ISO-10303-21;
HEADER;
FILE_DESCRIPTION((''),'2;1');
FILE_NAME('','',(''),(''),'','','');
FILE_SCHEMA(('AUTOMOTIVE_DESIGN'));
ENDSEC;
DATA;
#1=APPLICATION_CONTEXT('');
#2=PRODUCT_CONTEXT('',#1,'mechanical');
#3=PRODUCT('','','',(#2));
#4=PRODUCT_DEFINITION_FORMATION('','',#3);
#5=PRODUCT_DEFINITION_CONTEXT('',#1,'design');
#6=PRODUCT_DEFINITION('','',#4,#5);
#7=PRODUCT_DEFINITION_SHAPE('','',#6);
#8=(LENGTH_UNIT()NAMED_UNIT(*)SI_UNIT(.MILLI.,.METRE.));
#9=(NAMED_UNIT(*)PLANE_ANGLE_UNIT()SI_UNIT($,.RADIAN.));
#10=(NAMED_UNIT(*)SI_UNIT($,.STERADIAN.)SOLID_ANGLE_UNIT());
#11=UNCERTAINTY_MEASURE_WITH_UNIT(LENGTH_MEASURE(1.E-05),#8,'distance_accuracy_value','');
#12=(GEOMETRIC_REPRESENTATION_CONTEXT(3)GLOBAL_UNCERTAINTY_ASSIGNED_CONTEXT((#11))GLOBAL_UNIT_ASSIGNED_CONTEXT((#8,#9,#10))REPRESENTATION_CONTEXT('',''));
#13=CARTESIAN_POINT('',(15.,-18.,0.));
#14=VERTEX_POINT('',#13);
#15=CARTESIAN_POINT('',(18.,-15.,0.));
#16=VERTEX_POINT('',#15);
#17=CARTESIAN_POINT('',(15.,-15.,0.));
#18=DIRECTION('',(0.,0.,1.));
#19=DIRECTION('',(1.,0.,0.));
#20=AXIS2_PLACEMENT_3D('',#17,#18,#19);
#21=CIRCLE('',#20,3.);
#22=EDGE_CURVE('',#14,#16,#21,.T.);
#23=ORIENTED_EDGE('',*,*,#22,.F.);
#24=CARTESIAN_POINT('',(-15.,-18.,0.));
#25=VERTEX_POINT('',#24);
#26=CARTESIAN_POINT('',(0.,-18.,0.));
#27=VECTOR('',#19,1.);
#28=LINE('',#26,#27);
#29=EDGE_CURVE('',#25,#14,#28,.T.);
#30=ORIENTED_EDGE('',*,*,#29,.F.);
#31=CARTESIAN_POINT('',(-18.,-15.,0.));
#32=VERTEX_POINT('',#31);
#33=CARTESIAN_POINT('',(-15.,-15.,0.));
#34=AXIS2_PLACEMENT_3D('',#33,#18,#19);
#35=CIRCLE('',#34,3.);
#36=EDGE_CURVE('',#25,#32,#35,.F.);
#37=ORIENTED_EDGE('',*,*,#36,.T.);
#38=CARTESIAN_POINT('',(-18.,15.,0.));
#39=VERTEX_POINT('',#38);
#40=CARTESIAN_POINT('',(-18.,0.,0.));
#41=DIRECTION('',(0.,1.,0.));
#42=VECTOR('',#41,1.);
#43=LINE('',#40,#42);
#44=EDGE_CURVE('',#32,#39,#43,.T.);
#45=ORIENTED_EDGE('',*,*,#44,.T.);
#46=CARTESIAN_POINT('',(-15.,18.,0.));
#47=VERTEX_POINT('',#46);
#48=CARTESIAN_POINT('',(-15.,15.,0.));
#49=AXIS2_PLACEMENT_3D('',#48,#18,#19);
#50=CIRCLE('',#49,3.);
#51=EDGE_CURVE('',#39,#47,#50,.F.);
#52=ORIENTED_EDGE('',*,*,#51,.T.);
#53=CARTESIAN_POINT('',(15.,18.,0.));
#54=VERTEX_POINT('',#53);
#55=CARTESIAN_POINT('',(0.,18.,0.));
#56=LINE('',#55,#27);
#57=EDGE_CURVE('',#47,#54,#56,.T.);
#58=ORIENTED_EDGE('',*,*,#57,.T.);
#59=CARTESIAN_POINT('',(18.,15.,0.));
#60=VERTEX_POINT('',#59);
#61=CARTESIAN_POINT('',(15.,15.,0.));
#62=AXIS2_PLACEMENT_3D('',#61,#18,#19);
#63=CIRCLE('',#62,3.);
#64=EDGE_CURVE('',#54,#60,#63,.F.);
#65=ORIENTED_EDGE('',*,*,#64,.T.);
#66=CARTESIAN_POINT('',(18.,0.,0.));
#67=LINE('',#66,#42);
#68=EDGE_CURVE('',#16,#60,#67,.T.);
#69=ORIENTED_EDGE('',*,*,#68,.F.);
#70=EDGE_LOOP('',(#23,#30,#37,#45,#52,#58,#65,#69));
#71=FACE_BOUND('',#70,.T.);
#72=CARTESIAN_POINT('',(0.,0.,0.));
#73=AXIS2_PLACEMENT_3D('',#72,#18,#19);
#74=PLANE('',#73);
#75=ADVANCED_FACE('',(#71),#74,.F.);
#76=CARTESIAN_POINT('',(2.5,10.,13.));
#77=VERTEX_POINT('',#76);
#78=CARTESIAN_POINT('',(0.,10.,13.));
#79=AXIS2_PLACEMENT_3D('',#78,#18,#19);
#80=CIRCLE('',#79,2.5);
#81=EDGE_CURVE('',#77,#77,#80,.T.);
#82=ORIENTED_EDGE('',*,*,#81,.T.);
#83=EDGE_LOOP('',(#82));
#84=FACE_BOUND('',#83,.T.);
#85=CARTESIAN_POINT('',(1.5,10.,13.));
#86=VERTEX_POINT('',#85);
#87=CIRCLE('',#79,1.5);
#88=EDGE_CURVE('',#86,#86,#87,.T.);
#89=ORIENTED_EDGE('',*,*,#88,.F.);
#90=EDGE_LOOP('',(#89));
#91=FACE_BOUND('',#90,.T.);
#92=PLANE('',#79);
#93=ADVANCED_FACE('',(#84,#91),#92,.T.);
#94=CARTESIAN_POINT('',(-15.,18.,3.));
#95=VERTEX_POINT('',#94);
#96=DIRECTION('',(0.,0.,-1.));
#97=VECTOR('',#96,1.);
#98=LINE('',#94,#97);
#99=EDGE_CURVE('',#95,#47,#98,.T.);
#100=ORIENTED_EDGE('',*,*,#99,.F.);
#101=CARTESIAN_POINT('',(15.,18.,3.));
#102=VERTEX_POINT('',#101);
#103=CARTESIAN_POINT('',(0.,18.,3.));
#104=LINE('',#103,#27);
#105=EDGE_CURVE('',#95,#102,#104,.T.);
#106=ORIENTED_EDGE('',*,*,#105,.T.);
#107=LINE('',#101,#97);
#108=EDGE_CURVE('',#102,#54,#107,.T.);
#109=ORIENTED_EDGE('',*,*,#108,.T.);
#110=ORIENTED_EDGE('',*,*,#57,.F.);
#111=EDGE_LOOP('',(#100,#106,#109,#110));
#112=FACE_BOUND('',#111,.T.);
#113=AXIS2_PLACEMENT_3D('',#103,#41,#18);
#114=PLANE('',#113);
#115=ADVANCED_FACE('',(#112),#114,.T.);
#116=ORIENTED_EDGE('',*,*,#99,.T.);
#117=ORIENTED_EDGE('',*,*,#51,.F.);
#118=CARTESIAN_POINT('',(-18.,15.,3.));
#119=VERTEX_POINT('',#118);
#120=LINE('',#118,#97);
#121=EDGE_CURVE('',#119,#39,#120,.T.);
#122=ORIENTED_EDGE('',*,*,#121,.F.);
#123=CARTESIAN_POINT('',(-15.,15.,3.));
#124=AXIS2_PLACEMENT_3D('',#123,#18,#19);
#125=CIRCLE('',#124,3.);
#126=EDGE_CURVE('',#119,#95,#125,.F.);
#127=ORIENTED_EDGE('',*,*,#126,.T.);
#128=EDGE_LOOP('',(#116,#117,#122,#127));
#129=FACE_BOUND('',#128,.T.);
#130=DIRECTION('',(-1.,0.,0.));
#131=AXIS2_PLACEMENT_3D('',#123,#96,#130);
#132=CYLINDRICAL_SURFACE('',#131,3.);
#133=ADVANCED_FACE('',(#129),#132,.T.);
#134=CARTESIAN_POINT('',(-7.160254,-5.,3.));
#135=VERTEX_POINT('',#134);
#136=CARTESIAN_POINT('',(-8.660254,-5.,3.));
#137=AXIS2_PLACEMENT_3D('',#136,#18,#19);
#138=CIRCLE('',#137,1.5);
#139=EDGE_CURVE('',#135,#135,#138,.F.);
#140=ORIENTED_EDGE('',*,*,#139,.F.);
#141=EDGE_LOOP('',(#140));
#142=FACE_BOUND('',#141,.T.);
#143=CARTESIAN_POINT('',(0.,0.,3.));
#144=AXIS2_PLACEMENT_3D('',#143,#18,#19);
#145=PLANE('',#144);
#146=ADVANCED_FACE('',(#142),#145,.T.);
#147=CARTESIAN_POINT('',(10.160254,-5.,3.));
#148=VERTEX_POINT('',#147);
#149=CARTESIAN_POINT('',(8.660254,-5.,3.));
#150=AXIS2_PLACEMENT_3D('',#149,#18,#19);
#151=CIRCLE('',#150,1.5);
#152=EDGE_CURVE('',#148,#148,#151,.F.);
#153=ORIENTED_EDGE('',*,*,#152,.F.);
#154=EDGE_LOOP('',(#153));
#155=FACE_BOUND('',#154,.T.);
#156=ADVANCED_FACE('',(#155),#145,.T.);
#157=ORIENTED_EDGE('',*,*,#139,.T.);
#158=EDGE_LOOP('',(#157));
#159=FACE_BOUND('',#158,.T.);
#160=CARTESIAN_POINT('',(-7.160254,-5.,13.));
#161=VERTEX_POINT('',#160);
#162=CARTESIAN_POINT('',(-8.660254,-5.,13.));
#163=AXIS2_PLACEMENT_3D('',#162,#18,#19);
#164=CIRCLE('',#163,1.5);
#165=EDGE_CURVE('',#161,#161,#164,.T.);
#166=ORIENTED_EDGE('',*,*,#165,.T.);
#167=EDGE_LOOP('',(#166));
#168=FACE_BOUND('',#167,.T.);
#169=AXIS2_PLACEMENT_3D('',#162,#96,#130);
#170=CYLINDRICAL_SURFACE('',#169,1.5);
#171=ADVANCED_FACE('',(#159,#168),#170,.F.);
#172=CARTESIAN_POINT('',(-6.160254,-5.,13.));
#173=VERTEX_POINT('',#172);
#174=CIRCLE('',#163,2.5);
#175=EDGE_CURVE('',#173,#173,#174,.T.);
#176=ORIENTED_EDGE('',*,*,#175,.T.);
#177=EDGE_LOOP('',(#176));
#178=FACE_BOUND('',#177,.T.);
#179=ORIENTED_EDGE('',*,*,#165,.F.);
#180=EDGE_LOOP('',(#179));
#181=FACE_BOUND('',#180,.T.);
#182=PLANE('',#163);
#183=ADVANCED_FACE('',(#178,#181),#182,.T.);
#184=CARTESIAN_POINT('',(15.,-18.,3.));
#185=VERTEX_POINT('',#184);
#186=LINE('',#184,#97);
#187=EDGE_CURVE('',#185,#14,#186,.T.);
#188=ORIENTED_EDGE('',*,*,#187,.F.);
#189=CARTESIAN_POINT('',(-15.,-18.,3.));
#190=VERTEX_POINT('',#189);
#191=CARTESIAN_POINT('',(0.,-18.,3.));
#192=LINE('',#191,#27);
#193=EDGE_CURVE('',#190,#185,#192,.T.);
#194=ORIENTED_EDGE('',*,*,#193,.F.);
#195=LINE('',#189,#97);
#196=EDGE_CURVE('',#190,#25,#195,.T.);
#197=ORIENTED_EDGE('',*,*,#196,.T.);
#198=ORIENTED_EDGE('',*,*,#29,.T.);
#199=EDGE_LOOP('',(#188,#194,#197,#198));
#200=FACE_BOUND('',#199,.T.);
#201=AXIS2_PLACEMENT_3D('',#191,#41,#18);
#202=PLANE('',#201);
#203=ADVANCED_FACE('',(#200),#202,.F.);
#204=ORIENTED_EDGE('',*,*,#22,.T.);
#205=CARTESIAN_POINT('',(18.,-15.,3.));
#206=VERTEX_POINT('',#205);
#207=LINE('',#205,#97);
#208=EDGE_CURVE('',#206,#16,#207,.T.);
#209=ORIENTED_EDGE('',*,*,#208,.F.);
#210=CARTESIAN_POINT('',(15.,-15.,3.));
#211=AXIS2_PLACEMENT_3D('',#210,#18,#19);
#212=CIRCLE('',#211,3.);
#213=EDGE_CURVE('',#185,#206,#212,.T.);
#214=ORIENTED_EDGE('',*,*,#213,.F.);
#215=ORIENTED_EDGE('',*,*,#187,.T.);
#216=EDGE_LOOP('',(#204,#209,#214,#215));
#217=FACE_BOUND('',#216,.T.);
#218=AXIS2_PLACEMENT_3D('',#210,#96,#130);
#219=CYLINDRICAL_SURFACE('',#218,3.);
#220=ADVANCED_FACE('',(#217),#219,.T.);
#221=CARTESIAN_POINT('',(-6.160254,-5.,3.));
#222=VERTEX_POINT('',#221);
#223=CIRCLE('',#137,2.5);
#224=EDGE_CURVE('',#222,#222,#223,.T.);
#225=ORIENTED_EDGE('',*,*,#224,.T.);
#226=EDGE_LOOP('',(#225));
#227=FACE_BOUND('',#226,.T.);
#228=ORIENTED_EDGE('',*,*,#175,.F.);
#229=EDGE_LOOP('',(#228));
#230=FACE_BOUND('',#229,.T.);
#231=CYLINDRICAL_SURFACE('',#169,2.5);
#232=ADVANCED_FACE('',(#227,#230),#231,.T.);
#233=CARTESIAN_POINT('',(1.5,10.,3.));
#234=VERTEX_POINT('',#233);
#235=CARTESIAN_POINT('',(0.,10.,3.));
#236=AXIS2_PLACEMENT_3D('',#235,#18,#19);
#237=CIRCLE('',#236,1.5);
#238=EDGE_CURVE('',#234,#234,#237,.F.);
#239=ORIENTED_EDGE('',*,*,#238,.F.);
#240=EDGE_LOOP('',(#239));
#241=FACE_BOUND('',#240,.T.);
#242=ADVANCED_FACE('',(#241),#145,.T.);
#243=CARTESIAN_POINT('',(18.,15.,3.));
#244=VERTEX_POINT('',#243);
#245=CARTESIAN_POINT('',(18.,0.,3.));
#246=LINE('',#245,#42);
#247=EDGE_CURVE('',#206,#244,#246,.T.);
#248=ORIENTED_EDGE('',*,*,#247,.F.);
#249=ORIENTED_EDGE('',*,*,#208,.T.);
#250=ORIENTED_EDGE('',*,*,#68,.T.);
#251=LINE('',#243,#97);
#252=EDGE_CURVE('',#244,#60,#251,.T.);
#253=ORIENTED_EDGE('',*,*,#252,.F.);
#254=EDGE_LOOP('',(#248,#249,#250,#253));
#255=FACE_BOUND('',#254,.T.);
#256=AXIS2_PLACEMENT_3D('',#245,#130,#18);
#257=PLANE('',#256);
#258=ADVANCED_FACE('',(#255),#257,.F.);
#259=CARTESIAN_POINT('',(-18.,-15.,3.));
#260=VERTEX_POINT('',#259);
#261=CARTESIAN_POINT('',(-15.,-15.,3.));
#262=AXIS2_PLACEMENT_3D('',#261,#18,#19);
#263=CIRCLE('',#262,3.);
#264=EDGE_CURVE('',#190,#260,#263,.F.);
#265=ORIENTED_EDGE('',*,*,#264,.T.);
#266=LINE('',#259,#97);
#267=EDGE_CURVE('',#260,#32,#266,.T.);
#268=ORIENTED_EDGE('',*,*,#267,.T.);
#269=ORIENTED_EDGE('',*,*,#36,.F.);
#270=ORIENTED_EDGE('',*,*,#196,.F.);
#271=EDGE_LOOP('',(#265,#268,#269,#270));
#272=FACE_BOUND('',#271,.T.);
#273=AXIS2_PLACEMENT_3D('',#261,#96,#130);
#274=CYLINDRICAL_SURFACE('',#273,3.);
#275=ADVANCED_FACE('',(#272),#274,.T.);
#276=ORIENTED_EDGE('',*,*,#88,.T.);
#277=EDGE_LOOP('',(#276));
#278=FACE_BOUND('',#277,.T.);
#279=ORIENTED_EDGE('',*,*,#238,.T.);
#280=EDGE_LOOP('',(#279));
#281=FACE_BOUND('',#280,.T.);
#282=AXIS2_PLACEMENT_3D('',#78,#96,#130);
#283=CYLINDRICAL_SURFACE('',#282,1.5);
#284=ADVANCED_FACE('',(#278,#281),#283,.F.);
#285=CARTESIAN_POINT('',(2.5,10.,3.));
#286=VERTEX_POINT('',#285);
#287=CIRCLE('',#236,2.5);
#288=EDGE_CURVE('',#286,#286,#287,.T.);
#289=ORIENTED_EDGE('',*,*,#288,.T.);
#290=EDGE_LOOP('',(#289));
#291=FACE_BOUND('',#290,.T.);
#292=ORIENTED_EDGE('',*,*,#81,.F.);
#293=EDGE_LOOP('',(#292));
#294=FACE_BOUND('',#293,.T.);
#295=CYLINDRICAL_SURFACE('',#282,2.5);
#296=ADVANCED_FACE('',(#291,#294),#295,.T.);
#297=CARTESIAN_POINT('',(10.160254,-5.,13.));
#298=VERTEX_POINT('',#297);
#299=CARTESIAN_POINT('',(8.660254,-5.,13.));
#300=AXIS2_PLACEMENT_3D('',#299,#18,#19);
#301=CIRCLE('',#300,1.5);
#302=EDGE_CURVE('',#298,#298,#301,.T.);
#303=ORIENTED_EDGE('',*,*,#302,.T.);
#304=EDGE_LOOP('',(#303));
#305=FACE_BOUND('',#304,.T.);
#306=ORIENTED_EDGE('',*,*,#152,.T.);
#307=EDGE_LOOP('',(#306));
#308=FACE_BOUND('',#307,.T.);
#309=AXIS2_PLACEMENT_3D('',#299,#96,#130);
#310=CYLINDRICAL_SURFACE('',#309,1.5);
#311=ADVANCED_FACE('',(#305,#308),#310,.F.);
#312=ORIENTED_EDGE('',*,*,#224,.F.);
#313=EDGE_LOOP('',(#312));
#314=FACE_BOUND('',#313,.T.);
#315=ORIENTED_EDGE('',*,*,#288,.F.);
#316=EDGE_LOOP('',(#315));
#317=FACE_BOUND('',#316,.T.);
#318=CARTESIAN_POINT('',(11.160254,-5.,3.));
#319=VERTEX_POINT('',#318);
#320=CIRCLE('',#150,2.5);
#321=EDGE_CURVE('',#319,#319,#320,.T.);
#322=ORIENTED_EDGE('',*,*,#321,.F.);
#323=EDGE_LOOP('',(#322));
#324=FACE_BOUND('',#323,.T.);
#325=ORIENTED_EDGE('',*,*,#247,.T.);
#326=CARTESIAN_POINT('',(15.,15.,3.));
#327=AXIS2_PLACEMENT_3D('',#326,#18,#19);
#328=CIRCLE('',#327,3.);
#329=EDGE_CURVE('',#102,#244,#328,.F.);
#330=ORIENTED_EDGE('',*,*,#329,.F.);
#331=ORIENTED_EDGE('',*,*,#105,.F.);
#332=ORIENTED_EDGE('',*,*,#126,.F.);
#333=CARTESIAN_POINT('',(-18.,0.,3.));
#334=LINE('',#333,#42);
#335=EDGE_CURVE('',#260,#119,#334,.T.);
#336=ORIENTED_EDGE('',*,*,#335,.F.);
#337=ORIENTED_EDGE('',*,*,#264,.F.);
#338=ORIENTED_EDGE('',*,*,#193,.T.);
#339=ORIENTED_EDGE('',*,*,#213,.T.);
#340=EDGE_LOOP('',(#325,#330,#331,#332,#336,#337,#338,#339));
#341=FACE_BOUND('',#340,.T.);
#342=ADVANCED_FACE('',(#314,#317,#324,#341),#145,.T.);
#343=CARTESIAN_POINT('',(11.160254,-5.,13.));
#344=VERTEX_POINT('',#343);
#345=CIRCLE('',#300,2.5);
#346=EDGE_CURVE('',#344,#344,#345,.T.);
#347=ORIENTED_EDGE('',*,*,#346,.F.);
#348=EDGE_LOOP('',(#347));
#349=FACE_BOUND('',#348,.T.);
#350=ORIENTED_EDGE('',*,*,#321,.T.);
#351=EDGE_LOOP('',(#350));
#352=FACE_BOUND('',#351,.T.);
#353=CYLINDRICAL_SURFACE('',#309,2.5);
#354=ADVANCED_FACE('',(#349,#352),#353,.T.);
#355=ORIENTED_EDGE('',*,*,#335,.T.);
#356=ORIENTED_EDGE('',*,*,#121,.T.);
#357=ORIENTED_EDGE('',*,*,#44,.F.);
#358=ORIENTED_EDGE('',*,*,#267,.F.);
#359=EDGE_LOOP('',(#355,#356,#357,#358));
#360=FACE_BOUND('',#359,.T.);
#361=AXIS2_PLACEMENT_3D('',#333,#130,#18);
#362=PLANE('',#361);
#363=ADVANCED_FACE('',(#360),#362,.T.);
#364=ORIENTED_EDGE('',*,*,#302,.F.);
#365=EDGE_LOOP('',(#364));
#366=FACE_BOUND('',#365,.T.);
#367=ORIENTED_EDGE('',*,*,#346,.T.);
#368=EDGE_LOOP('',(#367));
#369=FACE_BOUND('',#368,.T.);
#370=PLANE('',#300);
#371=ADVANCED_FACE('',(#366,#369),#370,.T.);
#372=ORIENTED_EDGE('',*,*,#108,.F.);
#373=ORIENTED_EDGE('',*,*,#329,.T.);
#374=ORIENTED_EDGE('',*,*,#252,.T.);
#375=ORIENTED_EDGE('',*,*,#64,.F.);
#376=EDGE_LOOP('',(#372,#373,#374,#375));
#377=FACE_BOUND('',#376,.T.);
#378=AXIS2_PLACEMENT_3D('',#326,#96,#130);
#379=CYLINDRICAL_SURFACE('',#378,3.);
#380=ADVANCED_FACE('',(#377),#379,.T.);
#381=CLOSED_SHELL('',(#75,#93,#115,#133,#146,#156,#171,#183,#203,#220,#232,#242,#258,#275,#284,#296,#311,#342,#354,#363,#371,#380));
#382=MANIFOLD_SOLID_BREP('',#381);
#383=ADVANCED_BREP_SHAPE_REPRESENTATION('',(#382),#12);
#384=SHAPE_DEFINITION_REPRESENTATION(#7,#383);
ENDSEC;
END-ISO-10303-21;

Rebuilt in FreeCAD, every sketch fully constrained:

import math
import FreeCAD as App
import Part
import Sketcher

V = App.Vector
Q = App.Units.Quantity

doc = App.newDocument("Part")
body = doc.addObject("PartDesign::Body", "Body")

# Sketch on XY plane
sketch1 = body.newObject("Sketcher::SketchObject", "Sketch")
sketch1.AttachmentSupport = (doc.getObject("XY_Plane"), [""])
sketch1.MapMode = "FlatFace"
sketch1.addGeometry([
    Part.ArcOfCircle(Part.Circle(V(-15, 15, 0), V(0, 0, 1), 3), math.radians(90), math.radians(180)),  # 0
    Part.LineSegment(V(-18, 15, 0), V(-18, -15, 0)),  # 1
    Part.ArcOfCircle(Part.Circle(V(-15, -15, 0), V(0, 0, 1), 3), math.radians(180), math.radians(270)),  # 2
    Part.LineSegment(V(-15, -18, 0), V(15, -18, 0)),  # 3
    Part.ArcOfCircle(Part.Circle(V(15, -15, 0), V(0, 0, 1), 3), math.radians(-90), math.radians(0)),  # 4
    Part.LineSegment(V(18, -15, 0), V(18, 15, 0)),  # 5
    Part.ArcOfCircle(Part.Circle(V(15, 15, 0), V(0, 0, 1), 3), math.radians(0), math.radians(90)),  # 6
    Part.LineSegment(V(15, 18, 0), V(-15, 18, 0)),  # 7
], False)
sketch1.addConstraint([
    Sketcher.Constraint("Tangent", 0, 2, 1, 1),
    Sketcher.Constraint("Tangent", 1, 2, 2, 1),
    Sketcher.Constraint("Tangent", 2, 2, 3, 1),
    Sketcher.Constraint("Tangent", 3, 2, 4, 1),
    Sketcher.Constraint("Tangent", 4, 2, 5, 1),
    Sketcher.Constraint("Tangent", 5, 2, 6, 1),
    Sketcher.Constraint("Tangent", 6, 2, 7, 1),
    Sketcher.Constraint("Tangent", 7, 2, 0, 1),
    Sketcher.Constraint("Vertical", 1),
    Sketcher.Constraint("Horizontal", 3),
    Sketcher.Constraint("Vertical", 5),
    Sketcher.Constraint("Horizontal", 7),
    Sketcher.Constraint("Equal", 0, 2),
    Sketcher.Constraint("Equal", 2, 4),
    Sketcher.Constraint("Equal", 4, 6),
    Sketcher.Constraint("Symmetric", 0, 3, 4, 3, -1, 1),
    Sketcher.Constraint("Equal", 7, 1),
    Sketcher.Constraint("Radius", 0, Q("3 mm")),
    Sketcher.Constraint("DistanceX", 3, 1, 3, 2, Q("30 mm")),
])
pad1 = body.newObject("PartDesign::Pad", "Pad")
pad1.Profile = sketch1
pad1.Length = 3

# Sketch on XY plane
sketch2 = body.newObject("Sketcher::SketchObject", "Sketch001")
sketch2.AttachmentSupport = (doc.getObject("XY_Plane"), [""])
sketch2.MapMode = "FlatFace"
sketch2.AttachmentOffset = App.Placement(V(0, 0, 3), App.Rotation())
sketch2.addGeometry([
    Part.Circle(V(-8.7, -5, 0), V(0, 0, 1), 2.5),  # 0
    Part.Circle(V(-8.7, -5, 0), V(0, 0, 1), 1.5),  # 1
    Part.Circle(V(0, 10, 0), V(0, 0, 1), 2.5),  # 2
    Part.Circle(V(0, 10, 0), V(0, 0, 1), 1.5),  # 3
    Part.Circle(V(8.7, -5, 0), V(0, 0, 1), 2.5),  # 4
    Part.Circle(V(8.7, -5, 0), V(0, 0, 1), 1.5),  # 5
], False)
sketch2.addConstraint([
    Sketcher.Constraint("Coincident", 1, 3, 0, 3),
    Sketcher.Constraint("Coincident", 3, 3, 2, 3),
    Sketcher.Constraint("Coincident", 5, 3, 4, 3),
    Sketcher.Constraint("Equal", 0, 2),
    Sketcher.Constraint("Equal", 1, 3),
    Sketcher.Constraint("Equal", 2, 4),
    Sketcher.Constraint("Equal", 3, 5),
    Sketcher.Constraint("Symmetric", 0, 3, 4, 3, -2),
    Sketcher.Constraint("PointOnObject", 2, 3, -2),
    Sketcher.Constraint("Diameter", 0, Q("5 mm")),
    Sketcher.Constraint("Diameter", 1, Q("3 mm")),
    Sketcher.Constraint("DistanceY", 0, 3, -1, 1, Q("5 mm")),
    Sketcher.Constraint("DistanceY", -1, 1, 2, 3, Q("10 mm")),
    Sketcher.Constraint("DistanceX", 0, 3, 4, 3, Q("17.320508 mm")),
])
pad2 = body.newObject("PartDesign::Pad", "Pad001")
pad2.Profile = sketch2
pad2.Length = 10

doc.recompute()
